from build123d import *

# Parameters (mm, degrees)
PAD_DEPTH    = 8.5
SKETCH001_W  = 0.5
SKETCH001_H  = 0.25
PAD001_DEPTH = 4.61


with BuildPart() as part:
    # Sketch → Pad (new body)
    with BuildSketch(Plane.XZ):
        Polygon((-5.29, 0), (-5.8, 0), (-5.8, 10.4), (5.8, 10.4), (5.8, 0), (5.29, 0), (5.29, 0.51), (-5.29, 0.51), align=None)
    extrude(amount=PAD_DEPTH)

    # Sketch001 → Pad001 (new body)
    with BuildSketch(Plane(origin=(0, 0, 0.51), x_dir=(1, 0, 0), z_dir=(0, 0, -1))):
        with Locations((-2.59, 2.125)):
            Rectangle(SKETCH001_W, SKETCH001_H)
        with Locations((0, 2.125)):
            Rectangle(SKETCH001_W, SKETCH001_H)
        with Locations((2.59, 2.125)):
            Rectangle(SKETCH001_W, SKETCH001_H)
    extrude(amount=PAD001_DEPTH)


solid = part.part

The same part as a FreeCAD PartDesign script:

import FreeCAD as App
import Part
import Sketcher
from FreeCAD import Vector
Q = App.Units.Quantity


def add_polygon(sketch, points):
    """Adds a closed chain of lines whose ends are joined by coincident constraints."""
    first, n = sketch.GeometryCount, len(points)
    for a, b in zip(points, points[1:] + points[:1]):
        sketch.addGeometry(Part.LineSegment(App.Vector(*a, 0), App.Vector(*b, 0)), False)
    for i in range(n):
        sketch.addConstraint(Sketcher.Constraint("Coincident", first + i, 2, first + (i + 1) % n, 1))

doc = App.newDocument("Part")
body = doc.addObject("PartDesign::Body", "Body")

# Sketch on XZ plane
sketch1 = body.newObject("Sketcher::SketchObject", "Sketch")
sketch1.AttachmentSupport = (doc.getObject("XZ_Plane"), [""])
sketch1.MapMode = "FlatFace"
add_polygon(sketch1, [(-5.8, 0), (-5.3, 0), (-5.3, 0.5), (5.3, 0.5), (5.3, 0), (5.8, 0), (5.8, 10.4), (-5.8, 10.4)])  # lines 0-7
sketch1.addConstraint(Sketcher.Constraint("Horizontal", 0))
sketch1.addConstraint(Sketcher.Constraint("Vertical", 1))
sketch1.addConstraint(Sketcher.Constraint("Horizontal", 2))
sketch1.addConstraint(Sketcher.Constraint("Vertical", 3))
sketch1.addConstraint(Sketcher.Constraint("Horizontal", 4))
sketch1.addConstraint(Sketcher.Constraint("Vertical", 5))
sketch1.addConstraint(Sketcher.Constraint("Horizontal", 6))
sketch1.addConstraint(Sketcher.Constraint("Vertical", 7))
sketch1.addConstraint(Sketcher.Constraint("Symmetric", 0, 2, 3, 2, -1, 1))
sketch1.addConstraint(Sketcher.Constraint("Symmetric", 4, 2, 7, 2, -2))
sketch1.addConstraint(Sketcher.Constraint("Equal", 4, 1))
sketch1.addConstraint(Sketcher.Constraint("DistanceX", 6, 2, 6, 1, Q("11.6 mm")))
sketch1.addConstraint(Sketcher.Constraint("DistanceY", 5, 1, 5, 2, Q("10.4 mm")))
sketch1.addConstraint(Sketcher.Constraint("DistanceX", 0, 1, 0, 2, Q("0.51 mm")))
pad1 = body.newObject("PartDesign::Pad", "Pad")
pad1.Profile = sketch1
pad1.Length = 8.5

# Sketch on XY plane
sketch2 = body.newObject("Sketcher::SketchObject", "Sketch001")
sketch2.AttachmentSupport = (doc.getObject("XY_Plane"), [""])
sketch2.MapMode = "FlatFace"
sketch2.AttachmentOffset = App.Placement(Vector(0, 0, 0.51), App.Rotation())
add_polygon(sketch2, [(-2.84, -2.25), (-2.84, -2), (-2.34, -2), (-2.34, -2.25)])  # lines 0-3
add_polygon(sketch2, [(-0.25, -2.25), (-0.25, -2), (0.25, -2), (0.25, -2.25)])  # lines 4-7
add_polygon(sketch2, [(2.34, -2.25), (2.34, -2), (2.84, -2), (2.84, -2.25)])  # lines 8-11
sketch2.addConstraint(Sketcher.Constraint("Vertical", 0))
sketch2.addConstraint(Sketcher.Constraint("Horizontal", 1))
sketch2.addConstraint(Sketcher.Constraint("Vertical", 2))
sketch2.addConstraint(Sketcher.Constraint("Horizontal", 3))
sketch2.addConstraint(Sketcher.Constraint("Vertical", 4))
sketch2.addConstraint(Sketcher.Constraint("Horizontal", 5))
sketch2.addConstraint(Sketcher.Constraint("Vertical", 6))
sketch2.addConstraint(Sketcher.Constraint("Horizontal", 7))
sketch2.addConstraint(Sketcher.Constraint("Vertical", 8))
sketch2.addConstraint(Sketcher.Constraint("Horizontal", 9))
sketch2.addConstraint(Sketcher.Constraint("Vertical", 10))
sketch2.addConstraint(Sketcher.Constraint("Horizontal", 11))
sketch2.addConstraint(Sketcher.Constraint("Symmetric", 1, 2, 8, 2, -2))
sketch2.addConstraint(Sketcher.Constraint("Symmetric", 3, 2, 10, 2, -2))
sketch2.addConstraint(Sketcher.Constraint("Horizontal", 1, 2, 4, 2))
sketch2.addConstraint(Sketcher.Constraint("Horizontal", 3, 2, 6, 2))
sketch2.addConstraint(Sketcher.Constraint("Equal", 3, 5))
sketch2.addConstraint(Sketcher.Constraint("DistanceX", 1, 1, 1, 2, Q("0.5 mm")))
sketch2.addConstraint(Sketcher.Constraint("DistanceY", 0, 2, -1, 1, Q("2 mm")))
sketch2.addConstraint(Sketcher.Constraint("DistanceY", 0, 1, 0, 2, Q("0.25 mm")))
sketch2.addConstraint(Sketcher.Constraint("DistanceX", 0, 2, -1, 1, Q("2.84 mm")))
sketch2.addConstraint(Sketcher.Constraint("DistanceX", 4, 2, -1, 1, Q("0.25 mm")))
pad2 = body.newObject("PartDesign::Pad", "Pad001")
pad2.Profile = sketch2
pad2.Length = 4.61
pad2.Reversed = True

doc.recompute()
